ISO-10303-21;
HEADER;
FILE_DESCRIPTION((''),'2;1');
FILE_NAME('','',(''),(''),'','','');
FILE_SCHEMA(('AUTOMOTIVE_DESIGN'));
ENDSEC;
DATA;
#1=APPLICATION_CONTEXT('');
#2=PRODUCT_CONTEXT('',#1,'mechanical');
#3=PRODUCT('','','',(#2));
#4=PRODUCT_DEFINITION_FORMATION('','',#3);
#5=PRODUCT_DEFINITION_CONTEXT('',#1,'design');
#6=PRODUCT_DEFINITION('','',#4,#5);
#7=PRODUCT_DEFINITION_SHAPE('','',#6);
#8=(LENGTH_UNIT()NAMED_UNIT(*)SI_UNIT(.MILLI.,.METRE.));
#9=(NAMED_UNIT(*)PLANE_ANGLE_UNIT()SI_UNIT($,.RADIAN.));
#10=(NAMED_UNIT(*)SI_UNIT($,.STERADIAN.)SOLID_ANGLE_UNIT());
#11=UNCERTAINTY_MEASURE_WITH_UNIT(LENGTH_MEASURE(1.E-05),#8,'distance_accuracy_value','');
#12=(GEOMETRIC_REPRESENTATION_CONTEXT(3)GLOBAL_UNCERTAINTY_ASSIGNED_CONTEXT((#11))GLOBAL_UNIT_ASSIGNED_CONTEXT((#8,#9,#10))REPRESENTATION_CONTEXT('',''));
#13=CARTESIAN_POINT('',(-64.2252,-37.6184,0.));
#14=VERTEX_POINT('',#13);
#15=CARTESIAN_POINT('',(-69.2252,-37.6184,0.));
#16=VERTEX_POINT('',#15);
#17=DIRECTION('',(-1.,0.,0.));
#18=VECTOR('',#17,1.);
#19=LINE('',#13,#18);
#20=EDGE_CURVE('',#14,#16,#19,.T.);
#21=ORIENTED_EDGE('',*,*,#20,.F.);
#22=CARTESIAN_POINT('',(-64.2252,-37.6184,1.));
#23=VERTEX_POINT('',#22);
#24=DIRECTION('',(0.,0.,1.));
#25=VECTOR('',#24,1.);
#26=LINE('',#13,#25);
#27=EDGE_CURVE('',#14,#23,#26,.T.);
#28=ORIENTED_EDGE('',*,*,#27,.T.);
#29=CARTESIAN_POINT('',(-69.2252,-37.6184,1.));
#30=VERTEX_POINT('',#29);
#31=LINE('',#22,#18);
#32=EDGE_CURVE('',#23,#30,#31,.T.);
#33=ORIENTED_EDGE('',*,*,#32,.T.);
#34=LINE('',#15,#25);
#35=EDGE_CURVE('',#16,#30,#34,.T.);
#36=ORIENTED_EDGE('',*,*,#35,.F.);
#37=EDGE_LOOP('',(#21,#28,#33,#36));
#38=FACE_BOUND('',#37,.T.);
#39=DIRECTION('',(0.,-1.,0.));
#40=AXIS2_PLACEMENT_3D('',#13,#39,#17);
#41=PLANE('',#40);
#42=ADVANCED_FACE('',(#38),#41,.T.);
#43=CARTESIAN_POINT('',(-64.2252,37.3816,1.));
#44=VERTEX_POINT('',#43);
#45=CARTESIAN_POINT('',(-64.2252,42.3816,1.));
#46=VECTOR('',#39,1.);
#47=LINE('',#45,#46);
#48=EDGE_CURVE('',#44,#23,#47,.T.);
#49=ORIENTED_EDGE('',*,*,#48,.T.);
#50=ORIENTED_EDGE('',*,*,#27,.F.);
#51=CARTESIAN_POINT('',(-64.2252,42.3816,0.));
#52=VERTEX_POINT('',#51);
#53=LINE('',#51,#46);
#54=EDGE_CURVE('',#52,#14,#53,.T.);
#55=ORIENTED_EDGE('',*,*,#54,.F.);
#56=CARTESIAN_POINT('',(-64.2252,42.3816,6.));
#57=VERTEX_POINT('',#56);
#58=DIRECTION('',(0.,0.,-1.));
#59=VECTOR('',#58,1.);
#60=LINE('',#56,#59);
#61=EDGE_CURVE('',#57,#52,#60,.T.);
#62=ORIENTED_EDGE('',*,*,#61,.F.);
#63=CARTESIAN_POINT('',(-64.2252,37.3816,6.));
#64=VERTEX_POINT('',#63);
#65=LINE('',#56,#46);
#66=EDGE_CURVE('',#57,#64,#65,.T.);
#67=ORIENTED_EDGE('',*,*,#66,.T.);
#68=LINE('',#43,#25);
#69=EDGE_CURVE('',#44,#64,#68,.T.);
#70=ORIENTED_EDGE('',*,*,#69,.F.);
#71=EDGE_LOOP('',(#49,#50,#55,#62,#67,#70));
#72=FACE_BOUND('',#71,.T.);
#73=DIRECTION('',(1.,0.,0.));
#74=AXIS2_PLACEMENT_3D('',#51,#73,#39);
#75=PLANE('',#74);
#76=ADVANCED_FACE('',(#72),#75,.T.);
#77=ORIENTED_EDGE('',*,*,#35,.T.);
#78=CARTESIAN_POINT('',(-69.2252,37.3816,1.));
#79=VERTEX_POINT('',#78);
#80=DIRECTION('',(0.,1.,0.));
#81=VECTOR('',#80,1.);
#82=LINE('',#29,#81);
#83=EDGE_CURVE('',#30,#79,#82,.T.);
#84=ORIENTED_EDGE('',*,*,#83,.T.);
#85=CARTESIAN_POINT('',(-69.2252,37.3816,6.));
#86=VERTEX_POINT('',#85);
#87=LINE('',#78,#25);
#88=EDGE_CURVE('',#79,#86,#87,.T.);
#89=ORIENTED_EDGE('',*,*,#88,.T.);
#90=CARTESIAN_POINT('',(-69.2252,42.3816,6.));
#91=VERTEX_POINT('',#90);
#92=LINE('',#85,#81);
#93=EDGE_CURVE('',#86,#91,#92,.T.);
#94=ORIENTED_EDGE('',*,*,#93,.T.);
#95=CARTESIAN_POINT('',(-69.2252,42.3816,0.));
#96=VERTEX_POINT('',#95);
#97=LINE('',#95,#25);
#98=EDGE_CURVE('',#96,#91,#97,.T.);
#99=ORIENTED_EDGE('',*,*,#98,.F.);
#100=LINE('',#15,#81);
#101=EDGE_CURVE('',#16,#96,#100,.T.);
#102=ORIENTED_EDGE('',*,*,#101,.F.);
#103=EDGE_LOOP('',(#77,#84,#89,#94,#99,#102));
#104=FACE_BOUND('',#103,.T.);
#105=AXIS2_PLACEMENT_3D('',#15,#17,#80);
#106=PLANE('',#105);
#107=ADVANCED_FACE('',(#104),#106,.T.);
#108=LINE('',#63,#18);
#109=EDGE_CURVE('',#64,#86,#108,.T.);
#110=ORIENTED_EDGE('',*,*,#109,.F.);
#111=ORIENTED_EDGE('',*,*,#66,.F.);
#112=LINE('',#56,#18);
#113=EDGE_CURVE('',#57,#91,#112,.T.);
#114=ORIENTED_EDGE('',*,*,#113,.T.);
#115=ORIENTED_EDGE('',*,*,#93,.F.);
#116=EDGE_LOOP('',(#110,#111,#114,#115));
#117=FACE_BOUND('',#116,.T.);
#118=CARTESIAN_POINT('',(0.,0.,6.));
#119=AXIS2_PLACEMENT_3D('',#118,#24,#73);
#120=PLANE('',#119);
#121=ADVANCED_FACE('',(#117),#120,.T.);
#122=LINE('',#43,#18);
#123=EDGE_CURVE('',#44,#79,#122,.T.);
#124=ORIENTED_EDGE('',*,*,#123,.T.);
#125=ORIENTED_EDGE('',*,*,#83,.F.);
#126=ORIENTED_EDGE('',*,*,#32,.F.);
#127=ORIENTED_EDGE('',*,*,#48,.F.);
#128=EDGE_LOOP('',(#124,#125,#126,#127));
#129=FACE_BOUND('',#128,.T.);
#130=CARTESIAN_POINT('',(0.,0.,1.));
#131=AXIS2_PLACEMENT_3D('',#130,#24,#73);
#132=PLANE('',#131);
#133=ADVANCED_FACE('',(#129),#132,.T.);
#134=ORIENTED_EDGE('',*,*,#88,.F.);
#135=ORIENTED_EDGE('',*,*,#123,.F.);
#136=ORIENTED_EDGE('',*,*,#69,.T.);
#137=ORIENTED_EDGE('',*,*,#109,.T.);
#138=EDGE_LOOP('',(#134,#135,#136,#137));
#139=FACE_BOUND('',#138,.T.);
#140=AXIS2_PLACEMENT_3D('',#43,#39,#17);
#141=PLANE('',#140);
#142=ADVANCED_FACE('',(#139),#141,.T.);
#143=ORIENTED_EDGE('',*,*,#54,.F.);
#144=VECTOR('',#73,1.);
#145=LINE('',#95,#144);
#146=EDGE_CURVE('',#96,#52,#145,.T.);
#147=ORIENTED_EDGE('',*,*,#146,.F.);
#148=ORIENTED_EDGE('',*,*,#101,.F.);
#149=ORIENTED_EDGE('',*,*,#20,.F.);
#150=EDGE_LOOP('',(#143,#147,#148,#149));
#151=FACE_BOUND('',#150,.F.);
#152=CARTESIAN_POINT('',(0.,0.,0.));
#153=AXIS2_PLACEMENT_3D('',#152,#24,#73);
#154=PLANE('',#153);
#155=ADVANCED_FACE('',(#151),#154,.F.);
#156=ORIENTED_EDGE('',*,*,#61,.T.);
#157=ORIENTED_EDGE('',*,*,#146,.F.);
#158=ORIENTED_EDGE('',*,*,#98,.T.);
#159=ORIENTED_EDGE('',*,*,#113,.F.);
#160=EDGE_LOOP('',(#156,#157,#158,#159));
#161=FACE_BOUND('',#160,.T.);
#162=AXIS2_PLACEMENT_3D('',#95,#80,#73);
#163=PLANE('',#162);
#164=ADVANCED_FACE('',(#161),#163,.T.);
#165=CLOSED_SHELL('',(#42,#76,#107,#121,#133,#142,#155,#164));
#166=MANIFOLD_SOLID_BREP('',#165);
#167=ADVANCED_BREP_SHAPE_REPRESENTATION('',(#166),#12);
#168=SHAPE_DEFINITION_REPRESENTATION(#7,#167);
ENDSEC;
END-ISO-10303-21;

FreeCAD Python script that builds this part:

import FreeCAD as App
import Part
import Sketcher
Q = App.Units.Quantity

doc = App.newDocument("Part")
body = doc.addObject("PartDesign::Body", "Body")

# Sketch on XY plane
sketch1 = body.newObject("Sketcher::SketchObject", "Sketch")
sketch1.AttachmentSupport = (doc.getObject("XY_Plane"), [""])
sketch1.MapMode = "FlatFace"
sketch1.addGeometry([
    Part.LineSegment(App.Vector(-64.2252, 42.3816, 0), App.Vector(-69.2252, 42.3816, 0)),
    Part.LineSegment(App.Vector(-69.2252, 42.3816, 0), App.Vector(-69.2252, -37.6184, 0)),
    Part.LineSegment(App.Vector(-69.2252, -37.6184, 0), App.Vector(-64.2252, -37.6184, 0)),
    Part.LineSegment(App.Vector(-64.2252, -37.6184, 0), App.Vector(-64.2252, 42.3816, 0)),
], False)
sketch1.addConstraint([
    Sketcher.Constraint("Coincident", 0, 2, 1, 1),
    Sketcher.Constraint("Coincident", 1, 2, 2, 1),
    Sketcher.Constraint("Coincident", 2, 2, 3, 1),
    Sketcher.Constraint("Coincident", 3, 2, 0, 1),
    Sketcher.Constraint("Horizontal", 0),
    Sketcher.Constraint("Vertical", 1),
    Sketcher.Constraint("Horizontal", 2),
    Sketcher.Constraint("Vertical", 3),
    Sketcher.Constraint("DistanceX", 0, 2, 0, 1, Q("5 mm")),
    Sketcher.Constraint("DistanceY", 1, 2, 1, 1, Q("80 mm")),
    Sketcher.Constraint("DistanceX", 0, 2, -1, 1, Q("69.2252 mm")),
    Sketcher.Constraint("DistanceY", -1, 1, 0, 2, Q("42.3816 mm")),
])
pad1 = body.newObject("PartDesign::Pad", "Pad")
pad1.Profile = sketch1
pad1.Length = 1

# Sketch on XY plane
sketch2 = body.newObject("Sketcher::SketchObject", "Sketch001")
sketch2.AttachmentSupport = (doc.getObject("XY_Plane"), [""])
sketch2.MapMode = "FlatFace"
sketch2.AttachmentOffset = App.Placement(App.Vector(0, 0, 1), App.Rotation())
sketch2.addGeometry([
    Part.LineSegment(App.Vector(-64.2252, 37.3816, 0), App.Vector(-64.2252, 42.3816, 0)),
    Part.LineSegment(App.Vector(-64.2252, 42.3816, 0), App.Vector(-69.2252, 42.3816, 0)),
    Part.LineSegment(App.Vector(-69.2252, 42.3816, 0), App.Vector(-69.2252, 37.3816, 0)),
    Part.LineSegment(App.Vector(-69.2252, 37.3816, 0), App.Vector(-64.2252, 37.3816, 0)),
], False)
sketch2.addConstraint([
    Sketcher.Constraint("Coincident", 0, 2, 1, 1),
    Sketcher.Constraint("Coincident", 1, 2, 2, 1),
    Sketcher.Constraint("Coincident", 2, 2, 3, 1),
    Sketcher.Constraint("Coincident", 3, 2, 0, 1),
    Sketcher.Constraint("Vertical", 0),
    Sketcher.Constraint("Horizontal", 1),
    Sketcher.Constraint("Vertical", 2),
    Sketcher.Constraint("Horizontal", 3),
    Sketcher.Constraint("Equal", 3, 0),
    Sketcher.Constraint("DistanceX", 1, 2, 1, 1, Q("5 mm")),
    Sketcher.Constraint("DistanceX", 0, 2, -1, 1, Q("64.2252 mm")),
    Sketcher.Constraint("DistanceY", -1, 1, 0, 2, Q("42.3816 mm")),
])
pad2 = body.newObject("PartDesign::Pad", "Pad001")
pad2.Profile = sketch2
pad2.Length = 5

doc.recompute()
